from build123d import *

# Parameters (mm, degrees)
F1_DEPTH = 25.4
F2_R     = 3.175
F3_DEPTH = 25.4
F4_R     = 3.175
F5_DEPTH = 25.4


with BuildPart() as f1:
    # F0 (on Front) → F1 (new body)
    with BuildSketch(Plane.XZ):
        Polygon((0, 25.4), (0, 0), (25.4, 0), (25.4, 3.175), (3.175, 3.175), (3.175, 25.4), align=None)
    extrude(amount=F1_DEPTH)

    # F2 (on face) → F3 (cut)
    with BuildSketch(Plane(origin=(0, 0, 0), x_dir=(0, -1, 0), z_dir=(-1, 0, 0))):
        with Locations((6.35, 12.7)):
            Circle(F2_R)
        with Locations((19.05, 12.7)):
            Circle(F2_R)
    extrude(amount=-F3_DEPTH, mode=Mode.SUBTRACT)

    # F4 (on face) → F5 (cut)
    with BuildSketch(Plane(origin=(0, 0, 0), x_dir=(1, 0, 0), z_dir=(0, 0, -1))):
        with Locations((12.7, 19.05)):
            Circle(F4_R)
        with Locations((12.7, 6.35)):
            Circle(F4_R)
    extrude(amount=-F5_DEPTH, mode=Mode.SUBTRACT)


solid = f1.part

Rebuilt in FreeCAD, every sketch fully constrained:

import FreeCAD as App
import Part
import Sketcher

V = App.Vector
Q = App.Units.Quantity

doc = App.newDocument("Part")
body = doc.addObject("PartDesign::Body", "Body")

sketch1 = doc.addObject("Sketcher::SketchObject", "Sketch")
body.addObject(sketch1)
sketch1.AttachmentSupport = (doc.XZ_Plane, [""])
sketch1.MapMode = "FlatFace"
sketch1.addGeometry([
    Part.LineSegment(V(0, 25.4, 0), V(0, 0, 0)),
    Part.LineSegment(V(0, 0, 0), V(25.4, 0, 0)),
    Part.LineSegment(V(25.4, 0, 0), V(25.4, 3.175, 0)),
    Part.LineSegment(V(25.4, 3.175, 0), V(3.175, 3.175, 0)),
    Part.LineSegment(V(3.175, 3.175, 0), V(3.175, 25.4, 0)),
    Part.LineSegment(V(3.175, 25.4, 0), V(0, 25.4, 0)),
], False)
sketch1.addConstraint([
    Sketcher.Constraint("Coincident", 0, 2, 1, 1),
    Sketcher.Constraint("Coincident", 1, 2, 2, 1),
    Sketcher.Constraint("Coincident", 2, 2, 3, 1),
    Sketcher.Constraint("Coincident", 3, 2, 4, 1),
    Sketcher.Constraint("Coincident", 4, 2, 5, 1),
    Sketcher.Constraint("Coincident", 5, 2, 0, 1),
    Sketcher.Constraint("Vertical", 0),
    Sketcher.Constraint("Horizontal", 1),
    Sketcher.Constraint("Vertical", 2),
    Sketcher.Constraint("Horizontal", 3),
    Sketcher.Constraint("Vertical", 4),
    Sketcher.Constraint("Horizontal", 5),
    Sketcher.Constraint("Coincident", 0, 2, -1, 1),
    Sketcher.Constraint("Equal", 1, 0),
    Sketcher.Constraint("Equal", 5, 2),
    Sketcher.Constraint("DistanceX", 1, 1, 1, 2, Q("1 in")),
    Sketcher.Constraint("DistanceX", 3, 2, 3, 1, Q("0.875 in")),
])
pad1 = doc.addObject("PartDesign::Pad", "Pad")
body.addObject(pad1)
pad1.Profile = sketch1
pad1.Length = Q("1 in")

sketch2 = doc.addObject("Sketcher::SketchObject", "Sketch001")
body.addObject(sketch2)
sketch2.AttachmentSupport = (doc.YZ_Plane, [""])
sketch2.MapMode = "FlatFace"
sketch2.addGeometry([
    Part.Circle(V(-6.35, 12.7, 0), V(0, 0, 1), 3.175),
    Part.Circle(V(-19.05, 12.7, 0), V(0, 0, 1), 3.175),
], False)
sketch2.addConstraint([
    Sketcher.Constraint("Equal", 0, 1),
    Sketcher.Constraint("Horizontal", 0, 3, 1, 3),
    Sketcher.Constraint("Diameter", 0, Q("0.25 in")),
    Sketcher.Constraint("DistanceY", -1, 1, 0, 3, Q("0.5 in")),
    Sketcher.Constraint("DistanceX", 1, 3, 0, 3, Q("0.5 in")),
    Sketcher.Constraint("DistanceX", 0, 3, -1, 1, Q("0.25 in")),
])
pocket1 = doc.addObject("PartDesign::Pocket", "Pocket")
body.addObject(pocket1)
pocket1.Profile = sketch2
pocket1.Length = Q("1 in")
pocket1.Reversed = True

sketch3 = doc.addObject("Sketcher::SketchObject", "Sketch002")
body.addObject(sketch3)
sketch3.AttachmentSupport = (doc.XY_Plane, [""])
sketch3.MapMode = "FlatFace"
sketch3.addGeometry([
    Part.Circle(V(12.7, -19.05, 0), V(0, 0, 1), 3.175),
    Part.Circle(V(12.7, -6.35, 0), V(0, 0, 1), 3.175),
], False)
sketch3.addConstraint([
    Sketcher.Constraint("Equal", 0, 1),
    Sketcher.Constraint("Vertical", 0, 3, 1, 3),
    Sketcher.Constraint("Diameter", 0, Q("0.25 in")),
    Sketcher.Constraint("DistanceX", -1, 1, 0, 3, Q("0.5 in")),
    Sketcher.Constraint("DistanceY", 0, 3, 1, 3, Q("0.5 in")),
    Sketcher.Constraint("DistanceY", 0, 3, -1, 1, Q("0.75 in")),
])
pocket2 = doc.addObject("PartDesign::Pocket", "Pocket001")
body.addObject(pocket2)
pocket2.Profile = sketch3
pocket2.Length = Q("1 in")
pocket2.Reversed = True

doc.recompute()
